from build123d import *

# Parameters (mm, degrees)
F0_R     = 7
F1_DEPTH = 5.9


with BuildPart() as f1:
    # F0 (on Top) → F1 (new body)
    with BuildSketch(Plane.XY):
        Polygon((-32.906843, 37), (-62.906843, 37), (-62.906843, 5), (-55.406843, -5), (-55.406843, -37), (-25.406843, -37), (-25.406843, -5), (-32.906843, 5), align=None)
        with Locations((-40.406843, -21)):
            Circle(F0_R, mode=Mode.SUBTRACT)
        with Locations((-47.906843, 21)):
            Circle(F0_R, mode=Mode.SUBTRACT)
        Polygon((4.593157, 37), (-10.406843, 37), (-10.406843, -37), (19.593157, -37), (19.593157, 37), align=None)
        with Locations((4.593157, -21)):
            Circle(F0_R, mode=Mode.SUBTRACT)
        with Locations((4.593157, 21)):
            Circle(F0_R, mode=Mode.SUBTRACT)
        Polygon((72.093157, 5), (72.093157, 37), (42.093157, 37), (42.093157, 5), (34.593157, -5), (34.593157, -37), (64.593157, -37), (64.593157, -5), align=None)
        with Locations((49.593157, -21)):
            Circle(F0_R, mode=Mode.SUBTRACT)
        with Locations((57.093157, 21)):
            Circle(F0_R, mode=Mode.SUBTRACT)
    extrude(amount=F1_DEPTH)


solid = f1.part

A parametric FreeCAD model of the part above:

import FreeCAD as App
import Part
import Sketcher

V = App.Vector
Q = App.Units.Quantity

doc = App.newDocument("Part")
body = doc.addObject("PartDesign::Body", "Body")
body.AllowCompound = True

# Sketch on XY plane
sketch1 = body.newObject("Sketcher::SketchObject", "Sketch")
sketch1.AttachmentSupport = (doc.getObject("XY_Plane"), [""])
sketch1.MapMode = "FlatFace"
sketch1.addGeometry([
    Part.LineSegment(V(-32.906843, 37, 0), V(-62.906843, 37, 0)),  # 0
    Part.LineSegment(V(-62.906843, 37, 0), V(-62.906843, 5, 0)),  # 1
    Part.LineSegment(V(-62.906843, 5, 0), V(-55.406843, -5, 0)),  # 2
    Part.LineSegment(V(-55.406843, -5, 0), V(-55.406843, -37, 0)),  # 3
    Part.LineSegment(V(-55.406843, -37, 0), V(-25.406843, -37, 0)),  # 4
    Part.LineSegment(V(-25.406843, -37, 0), V(-25.406843, -5, 0)),  # 5
    Part.LineSegment(V(-25.406843, -5, 0), V(-32.906843, 5, 0)),  # 6
    Part.LineSegment(V(-32.906843, 5, 0), V(-32.906843, 37, 0)),  # 7
    Part.Circle(V(-40.406843, -21, 0), V(0, 0, 1), 7),  # 8
    Part.Circle(V(-47.906843, 21, 0), V(0, 0, 1), 7),  # 9
    Part.LineSegment(V(-10.406843, 37, 0), V(-10.406843, -37, 0)),  # 10
    Part.LineSegment(V(-10.406843, -37, 0), V(19.593157, -37, 0)),  # 11
    Part.LineSegment(V(19.593157, -37, 0), V(19.593157, 37, 0)),  # 12
    Part.LineSegment(V(19.593157, 37, 0), V(-10.406843, 37, 0)),  # 13
    Part.Circle(V(4.593157, -21, 0), V(0, 0, 1), 7),  # 14
    Part.Circle(V(4.593157, 21, 0), V(0, 0, 1), 7),  # 15
    Part.LineSegment(V(72.093157, 5, 0), V(72.093157, 37, 0)),  # 16
    Part.LineSegment(V(72.093157, 37, 0), V(42.093157, 37, 0)),  # 17
    Part.LineSegment(V(42.093157, 37, 0), V(42.093157, 5, 0)),  # 18
    Part.LineSegment(V(42.093157, 5, 0), V(34.593157, -5, 0)),  # 19
    Part.LineSegment(V(34.593157, -5, 0), V(34.593157, -37, 0)),  # 20
    Part.LineSegment(V(34.593157, -37, 0), V(64.593157, -37, 0)),  # 21
    Part.LineSegment(V(64.593157, -37, 0), V(64.593157, -5, 0)),  # 22
    Part.LineSegment(V(64.593157, -5, 0), V(72.093157, 5, 0)),  # 23
    Part.Circle(V(49.593157, -21, 0), V(0, 0, 1), 7),  # 24
    Part.Circle(V(57.093157, 21, 0), V(0, 0, 1), 7),  # 25
], False)
sketch1.addConstraint([
    Sketcher.Constraint("Coincident", 0, 2, 1, 1),
    Sketcher.Constraint("Coincident", 1, 2, 2, 1),
    Sketcher.Constraint("Coincident", 2, 2, 3, 1),
    Sketcher.Constraint("Coincident", 3, 2, 4, 1),
    Sketcher.Constraint("Coincident", 4, 2, 5, 1),
    Sketcher.Constraint("Coincident", 5, 2, 6, 1),
    Sketcher.Constraint("Coincident", 6, 2, 7, 1),
    Sketcher.Constraint("Coincident", 7, 2, 0, 1),
    Sketcher.Constraint("Coincident", 10, 2, 11, 1),
    Sketcher.Constraint("Coincident", 11, 2, 12, 1),
    Sketcher.Constraint("Coincident", 12, 2, 13, 1),
    Sketcher.Constraint("Coincident", 13, 2, 10, 1),
    Sketcher.Constraint("Coincident", 16, 2, 17, 1),
    Sketcher.Constraint("Coincident", 17, 2, 18, 1),
    Sketcher.Constraint("Coincident", 18, 2, 19, 1),
    Sketcher.Constraint("Coincident", 19, 2, 20, 1),
    Sketcher.Constraint("Coincident", 20, 2, 21, 1),
    Sketcher.Constraint("Coincident", 21, 2, 22, 1),
    Sketcher.Constraint("Coincident", 22, 2, 23, 1),
    Sketcher.Constraint("Coincident", 23, 2, 16, 1),
    Sketcher.Constraint("Horizontal", 0),
    Sketcher.Constraint("Vertical", 1),
    Sketcher.Constraint("Vertical", 3),
    Sketcher.Constraint("Horizontal", 4),
    Sketcher.Constraint("Vertical", 5),
    Sketcher.Constraint("Vertical", 7),
    Sketcher.Constraint("Vertical", 10),
    Sketcher.Constraint("Horizontal", 11),
    Sketcher.Constraint("Vertical", 12),
    Sketcher.Constraint("Horizontal", 13),
    Sketcher.Constraint("Vertical", 16),
    Sketcher.Constraint("Horizontal", 17),
    Sketcher.Constraint("Vertical", 18),
    Sketcher.Constraint("Vertical", 20),
    Sketcher.Constraint("Horizontal", 21),
    Sketcher.Constraint("Vertical", 22),
    Sketcher.Constraint("Equal", 8, 9),
    Sketcher.Constraint("Equal", 9, 14),
    Sketcher.Constraint("Equal", 14, 15),
    Sketcher.Constraint("Equal", 15, 24),
    Sketcher.Constraint("Equal", 24, 25),
    Sketcher.Constraint("Symmetric", 14, 3, 15, 3, -1),
    Sketcher.Constraint("Parallel", 2, 6),
    Sketcher.Constraint("Parallel", 19, 23),
    Sketcher.Constraint("Horizontal", 8, 3, 14, 3),
    Sketcher.Constraint("Horizontal", 9, 3, 15, 3),
    Sketcher.Constraint("Horizontal", 14, 3, 24, 3),
    Sketcher.Constraint("Horizontal", 15, 3, 25, 3),
    Sketcher.Constraint("Horizontal", 2, 2, 5, 2),
    Sketcher.Constraint("Horizontal", 1, 2, 6, 2),
    Sketcher.Constraint("Horizontal", 4, 2, 10, 2),
    Sketcher.Constraint("Horizontal", 7, 2, 12, 2),
    Sketcher.Constraint("Horizontal", 13, 2, 16, 2),
    Sketcher.Constraint("Horizontal", 6, 2, 18, 2),
    Sketcher.Constraint("Horizontal", 5, 2, 19, 2),
    Sketcher.Constraint("Horizontal", 11, 2, 20, 2),
    Sketcher.Constraint("Horizontal", 19, 2, 22, 2),
    Sketcher.Constraint("Horizontal", 18, 2, 23, 2),
    Sketcher.Constraint("Equal", 4, 11),
    Sketcher.Constraint("Equal", 13, 17),
    Sketcher.Constraint("Equal", 1, 3),
    Sketcher.Constraint("Equal", 6, 19),
    Sketcher.Constraint("Diameter", 8, Q("14 mm")),
    Sketcher.Constraint("DistanceX", 0, 2, 0, 1, Q("30 mm")),
    Sketcher.Constraint("DistanceY", 1, 2, 1, 1, Q("32 mm")),
    Sketcher.Constraint("DistanceY", 10, 2, 10, 1, Q("74 mm")),
    Sketcher.Constraint("DistanceY", 8, 3, -1, 1, Q("21 mm")),
    Sketcher.Constraint("DistanceY", -1, 1, 0, 2, Q("37 mm")),
    Sketcher.Constraint("DistanceX", 8, 3, 14, 3, Q("45 mm")),
    Sketcher.Constraint("DistanceX", 14, 3, 24, 3, Q("45 mm")),
    Sketcher.Constraint("DistanceX", 9, 3, 25, 3, Q("105 mm")),
    Sketcher.Constraint("DistanceX", 0, 2, 9, 3, Q("15 mm")),
    Sketcher.Constraint("DistanceX", 2, 2, 8, 3, Q("15 mm")),
    Sketcher.Constraint("DistanceX", 4, 2, 10, 2, Q("15 mm")),
    Sketcher.Constraint("DistanceX", 25, 3, 16, 2, Q("15 mm")),
    Sketcher.Constraint("DistanceX", 19, 2, 24, 3, Q("15 mm")),
    Sketcher.Constraint("DistanceX", 8, 3, -1, 1, Q("40.406843 mm")),
])
pad1 = body.newObject("PartDesign::Pad", "Pad")
pad1.Profile = sketch1
pad1.Length = 5.9

doc.recompute()
